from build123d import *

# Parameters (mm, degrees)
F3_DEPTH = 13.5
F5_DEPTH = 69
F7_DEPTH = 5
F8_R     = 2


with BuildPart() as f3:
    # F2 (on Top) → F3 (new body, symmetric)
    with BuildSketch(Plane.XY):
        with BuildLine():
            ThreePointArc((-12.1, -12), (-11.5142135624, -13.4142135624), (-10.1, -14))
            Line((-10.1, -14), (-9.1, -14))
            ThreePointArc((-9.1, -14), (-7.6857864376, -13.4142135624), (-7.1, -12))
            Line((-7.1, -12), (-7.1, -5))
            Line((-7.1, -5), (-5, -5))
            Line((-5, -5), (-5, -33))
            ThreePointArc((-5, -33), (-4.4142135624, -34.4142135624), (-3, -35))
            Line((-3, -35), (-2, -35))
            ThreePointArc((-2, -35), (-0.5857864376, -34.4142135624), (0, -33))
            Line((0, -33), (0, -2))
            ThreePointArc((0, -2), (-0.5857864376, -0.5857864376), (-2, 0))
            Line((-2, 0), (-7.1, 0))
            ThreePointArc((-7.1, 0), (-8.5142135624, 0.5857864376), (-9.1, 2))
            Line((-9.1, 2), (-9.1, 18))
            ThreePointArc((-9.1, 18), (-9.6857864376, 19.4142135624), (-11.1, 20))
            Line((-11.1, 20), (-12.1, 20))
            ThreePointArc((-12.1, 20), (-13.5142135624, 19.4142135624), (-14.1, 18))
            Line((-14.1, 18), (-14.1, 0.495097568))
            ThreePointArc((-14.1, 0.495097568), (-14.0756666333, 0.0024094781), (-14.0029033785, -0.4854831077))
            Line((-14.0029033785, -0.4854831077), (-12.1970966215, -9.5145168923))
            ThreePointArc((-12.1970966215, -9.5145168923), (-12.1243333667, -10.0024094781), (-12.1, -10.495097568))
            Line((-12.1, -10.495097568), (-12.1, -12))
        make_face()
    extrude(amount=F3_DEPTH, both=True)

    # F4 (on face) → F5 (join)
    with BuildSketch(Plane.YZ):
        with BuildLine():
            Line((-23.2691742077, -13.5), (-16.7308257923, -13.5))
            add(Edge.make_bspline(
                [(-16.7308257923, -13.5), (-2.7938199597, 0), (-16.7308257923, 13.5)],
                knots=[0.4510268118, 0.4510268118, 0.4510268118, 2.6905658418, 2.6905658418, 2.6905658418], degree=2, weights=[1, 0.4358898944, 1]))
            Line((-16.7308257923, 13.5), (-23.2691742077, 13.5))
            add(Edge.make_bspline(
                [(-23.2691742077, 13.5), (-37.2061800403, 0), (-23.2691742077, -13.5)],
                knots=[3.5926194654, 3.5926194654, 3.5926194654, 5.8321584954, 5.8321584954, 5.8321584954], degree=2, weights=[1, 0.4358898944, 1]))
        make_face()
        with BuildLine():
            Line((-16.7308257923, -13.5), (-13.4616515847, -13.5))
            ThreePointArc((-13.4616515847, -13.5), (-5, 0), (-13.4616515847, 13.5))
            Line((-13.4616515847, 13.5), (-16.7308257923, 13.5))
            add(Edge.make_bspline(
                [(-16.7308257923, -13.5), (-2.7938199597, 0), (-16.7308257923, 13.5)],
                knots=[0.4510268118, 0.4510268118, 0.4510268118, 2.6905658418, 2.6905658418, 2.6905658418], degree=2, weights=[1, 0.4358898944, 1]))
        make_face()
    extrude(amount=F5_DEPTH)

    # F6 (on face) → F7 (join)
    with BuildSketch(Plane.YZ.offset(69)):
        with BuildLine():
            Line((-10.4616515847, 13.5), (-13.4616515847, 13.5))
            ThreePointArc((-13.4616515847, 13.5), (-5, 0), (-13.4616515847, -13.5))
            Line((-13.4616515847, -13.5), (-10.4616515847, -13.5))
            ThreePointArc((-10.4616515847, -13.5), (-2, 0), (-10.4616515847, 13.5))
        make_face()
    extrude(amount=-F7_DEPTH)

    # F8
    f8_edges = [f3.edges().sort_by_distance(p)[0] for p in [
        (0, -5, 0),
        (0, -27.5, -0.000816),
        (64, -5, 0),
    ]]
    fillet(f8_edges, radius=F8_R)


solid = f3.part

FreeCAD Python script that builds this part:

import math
import FreeCAD as App
import Part
import Sketcher

V = App.Vector
Q = App.Units.Quantity


def edges_at(feature, points):
    """Names of the edges that pass closest to the given points."""
    edges = feature.Shape.Edges
    near = lambda p: min(range(len(edges)), key=lambda i: edges[i].distToShape(Part.Vertex(*p))[0])
    return sorted({f"Edge{near(p) + 1}" for p in points})

doc = App.newDocument("Part")
body = doc.addObject("PartDesign::Body", "Body")

sketch1 = body.newObject("Sketcher::SketchObject", "Sketch")
sketch1.AttachmentSupport = (doc.getObject("XY_Plane"), [""])
sketch1.MapMode = "FlatFace"
sketch1.addGeometry(Part.ArcOfCircle(Part.Circle(V(-10.1, -12, 0), V(0, 0, 1), 2), math.radians(180), math.radians(270)), False)
sketch1.addGeometry(Part.LineSegment(V(-10.1, -14, 0), V(-9.1, -14, 0)), False)
sketch1.addGeometry(Part.ArcOfCircle(Part.Circle(V(-9.1, -12, 0), V(0, 0, 1), 2), math.radians(-90), math.radians(0)), False)
sketch1.addGeometry(Part.LineSegment(V(-7.1, -12, 0), V(-7.1, -5, 0)), False)
sketch1.addGeometry(Part.LineSegment(V(-7.1, -5, 0), V(-5, -5, 0)), False)
sketch1.addGeometry(Part.LineSegment(V(-5, -5, 0), V(-5, -33, 0)), False)
sketch1.addGeometry(Part.ArcOfCircle(Part.Circle(V(-3, -33, 0), V(0, 0, 1), 2), math.radians(180), math.radians(270)), False)
sketch1.addGeometry(Part.LineSegment(V(-3, -35, 0), V(-2, -35, 0)), False)
sketch1.addGeometry(Part.ArcOfCircle(Part.Circle(V(-2, -33, 0), V(0, 0, 1), 2), math.radians(-90), math.radians(0)), False)
sketch1.addGeometry(Part.LineSegment(V(0, -33, 0), V(0, -2, 0)), False)
sketch1.addGeometry(Part.ArcOfCircle(Part.Circle(V(-2, -2, 0), V(0, 0, 1), 2), math.radians(0), math.radians(90)), False)
sketch1.addGeometry(Part.LineSegment(V(-2, 0, 0), V(-7.1, 0, 0)), False)
sketch1.addGeometry(Part.ArcOfCircle(Part.Circle(V(-7.1, 2, 0), V(0, 0, 1), 2), math.radians(180), math.radians(270)), False)
sketch1.addGeometry(Part.LineSegment(V(-9.1, 2, 0), V(-9.1, 18, 0)), False)
sketch1.addGeometry(Part.ArcOfCircle(Part.Circle(V(-11.1, 18, 0), V(0, 0, 1), 2), math.radians(0), math.radians(90)), False)
sketch1.addGeometry(Part.LineSegment(V(-11.1, 20, 0), V(-12.1, 20, 0)), False)
sketch1.addGeometry(Part.ArcOfCircle(Part.Circle(V(-12.1, 18, 0), V(0, 0, 1), 2), math.radians(90), math.radians(180)), False)
sketch1.addGeometry(Part.LineSegment(V(-14.1, 18, 0), V(-14.1, 0.5, 0)), False)
sketch1.addGeometry(Part.ArcOfCircle(Part.Circle(V(-9.1, 0.5, 0), V(0, 0, 1), 5), math.radians(-180), math.radians(-168.69)), False)
sketch1.addGeometry(Part.LineSegment(V(-14, -0.5, 0), V(-12.2, -9.5, 0)), False)
sketch1.addGeometry(Part.ArcOfCircle(Part.Circle(V(-17.1, -10.5, 0), V(0, 0, 1), 5), math.radians(0), math.radians(11.31)), False)
sketch1.addGeometry(Part.LineSegment(V(-12.1, -10.5, 0), V(-12.1, -12, 0)), False)
sketch1.addConstraint(Sketcher.Constraint("Tangent", 0, 2, 1, 1))
sketch1.addConstraint(Sketcher.Constraint("Tangent", 1, 2, 2, 1))
sketch1.addConstraint(Sketcher.Constraint("Tangent", 2, 2, 3, 1))
sketch1.addConstraint(Sketcher.Constraint("Coincident", 3, 2, 4, 1))
sketch1.addConstraint(Sketcher.Constraint("Coincident", 4, 2, 5, 1))
sketch1.addConstraint(Sketcher.Constraint("Tangent", 5, 2, 6, 1))
sketch1.addConstraint(Sketcher.Constraint("Tangent", 6, 2, 7, 1))
sketch1.addConstraint(Sketcher.Constraint("Tangent", 7, 2, 8, 1))
sketch1.addConstraint(Sketcher.Constraint("Tangent", 8, 2, 9, 1))
sketch1.addConstraint(Sketcher.Constraint("Tangent", 9, 2, 10, 1))
sketch1.addConstraint(Sketcher.Constraint("Tangent", 10, 2, 11, 1))
sketch1.addConstraint(Sketcher.Constraint("Tangent", 11, 2, 12, 2))
sketch1.addConstraint(Sketcher.Constraint("Tangent", 12, 1, 13, 1))
sketch1.addConstraint(Sketcher.Constraint("Tangent", 13, 2, 14, 1))
sketch1.addConstraint(Sketcher.Constraint("Tangent", 14, 2, 15, 1))
sketch1.addConstraint(Sketcher.Constraint("Tangent", 15, 2, 16, 1))
sketch1.addConstraint(Sketcher.Constraint("Tangent", 16, 2, 17, 1))
sketch1.addConstraint(Sketcher.Constraint("Tangent", 17, 2, 18, 1))
sketch1.addConstraint(Sketcher.Constraint("Tangent", 18, 2, 19, 1))
sketch1.addConstraint(Sketcher.Constraint("Tangent", 19, 2, 20, 2))
sketch1.addConstraint(Sketcher.Constraint("Tangent", 20, 1, 21, 1))
sketch1.addConstraint(Sketcher.Constraint("Tangent", 21, 2, 0, 1))
sketch1.addConstraint(Sketcher.Constraint("Horizontal", 1))
sketch1.addConstraint(Sketcher.Constraint("Vertical", 3))
sketch1.addConstraint(Sketcher.Constraint("Horizontal", 4))
sketch1.addConstraint(Sketcher.Constraint("Vertical", 5))
sketch1.addConstraint(Sketcher.Constraint("Horizontal", 7))
sketch1.addConstraint(Sketcher.Constraint("Vertical", 9))
sketch1.addConstraint(Sketcher.Constraint("Horizontal", 11))
sketch1.addConstraint(Sketcher.Constraint("Vertical", 13))
sketch1.addConstraint(Sketcher.Constraint("Horizontal", 15))
sketch1.addConstraint(Sketcher.Constraint("Vertical", 17))
sketch1.addConstraint(Sketcher.Constraint("Vertical", 21))
sketch1.addConstraint(Sketcher.Constraint("Equal", 0, 2))
sketch1.addConstraint(Sketcher.Constraint("Equal", 2, 6))
sketch1.addConstraint(Sketcher.Constraint("Equal", 6, 8))
sketch1.addConstraint(Sketcher.Constraint("Equal", 8, 10))
sketch1.addConstraint(Sketcher.Constraint("Equal", 10, 12))
sketch1.addConstraint(Sketcher.Constraint("Equal", 12, 14))
sketch1.addConstraint(Sketcher.Constraint("Equal", 14, 16))
sketch1.addConstraint(Sketcher.Constraint("Equal", 18, 20))
sketch1.addConstraint(Sketcher.Constraint("PointOnObject", 8, 2, -2))
sketch1.addConstraint(Sketcher.Constraint("PointOnObject", 10, 2, -1))
sketch1.addConstraint(Sketcher.Constraint("Vertical", 2, 3, 18, 3))
sketch1.addConstraint(Sketcher.Constraint("Vertical", 12, 3, 2, 2))
sketch1.addConstraint(Sketcher.Constraint("Vertical", 15, 2, 20, 1))
sketch1.addConstraint(Sketcher.Constraint("Equal", 1, 7))
sketch1.addConstraint(Sketcher.Constraint("Radius", 0, Q("2 mm")))
sketch1.addConstraint(Sketcher.Constraint("Radius", 18, Q("5 mm")))
sketch1.addConstraint(Sketcher.Constraint("DistanceY", 3, 1, 3, 2, Q("7 mm")))
sketch1.addConstraint(Sketcher.Constraint("DistanceY", 5, 2, 5, 1, Q("28 mm")))
sketch1.addConstraint(Sketcher.Constraint("DistanceY", 9, 1, 9, 2, Q("31 mm")))
sketch1.addConstraint(Sketcher.Constraint("DistanceY", 13, 1, 13, 2, Q("16 mm")))
sketch1.addConstraint(Sketcher.Constraint("DistanceX", 4, 1, 4, 2, Q("2.1 mm")))
sketch1.addConstraint(Sketcher.Constraint("DistanceY", 17, 2, 17, 1, Q("17.504902 mm")))
sketch1.addConstraint(Sketcher.Constraint("DistanceY", 21, 2, 21, 1, Q("1.504902 mm")))
pad1 = body.newObject("PartDesign::Pad", "Pad")
pad1.Profile = sketch1
pad1.Length = 27
pad1.Midplane = True

sketch2 = body.newObject("Sketcher::SketchObject", "Sketch001")
sketch2.AttachmentSupport = (doc.getObject("YZ_Plane"), [""])
sketch2.MapMode = "FlatFace"
sketch2.addGeometry(Part.LineSegment(V(-23.269174, -13.5, 0), V(-13.461652, -13.5, 0)), False)
sketch2.addGeometry(Part.ArcOfCircle(Part.Circle(V(-20, 0, 0), V(0, 0, 1), 15), math.radians(-64.158067), math.radians(64.158067)), False)
sketch2.addGeometry(Part.LineSegment(V(-13.461652, 13.5, 0), V(-23.269174, 13.5, 0)), False)
sketch2.addGeometry(Part.BSplineCurve([V(-23.269174, 13.5, 0), V(-37.20618, 0, 0), V(-23.269174, -13.5, 0)], [3, 3], [3.592619465, 5.832158495], False, 2, [1, 0.435889894, 1], False), False)
sketch2.addConstraint(Sketcher.Constraint("Block", 3))
sketch2.addConstraint(Sketcher.Constraint("Coincident", 0, 2, 1, 1))
sketch2.addConstraint(Sketcher.Constraint("Coincident", 1, 2, 2, 1))
sketch2.addConstraint(Sketcher.Constraint("Coincident", 2, 2, 3, 1))
sketch2.addConstraint(Sketcher.Constraint("Coincident", 3, 2, 0, 1))
sketch2.addConstraint(Sketcher.Constraint("Horizontal", 0))
sketch2.addConstraint(Sketcher.Constraint("Horizontal", 2))
sketch2.addConstraint(Sketcher.Constraint("PointOnObject", 1, 3, -1))
sketch2.addConstraint(Sketcher.Constraint("Radius", 1, Q("15 mm")))
sketch2.addConstraint(Sketcher.Constraint("DistanceX", 1, 3, -1, 1, Q("20 mm")))
pad2 = body.newObject("PartDesign::Pad", "Pad001")
pad2.Profile = sketch2
pad2.Length = 69

sketch3 = body.newObject("Sketcher::SketchObject", "Sketch002")
sketch3.AttachmentSupport = (doc.getObject("YZ_Plane"), [""])
sketch3.MapMode = "FlatFace"
sketch3.AttachmentOffset = App.Placement(V(0, 0, 69), App.Rotation())
sketch3.addGeometry(Part.LineSegment(V(-10.5, 13.5, 0), V(-13.5, 13.5, 0)), False)
sketch3.addGeometry(Part.ArcOfCircle(Part.Circle(V(-20, 0, 0), V(0, 0, 1), 15), math.radians(-64), math.radians(64)), False)
sketch3.addGeometry(Part.LineSegment(V(-13.5, -13.5, 0), V(-10.5, -13.5, 0)), False)
sketch3.addGeometry(Part.ArcOfCircle(Part.Circle(V(-17, 0, 0), V(0, 0, 1), 15), math.radians(-64), math.radians(64)), False)
sketch3.addConstraint(Sketcher.Constraint("Coincident", 0, 2, 1, 2))
sketch3.addConstraint(Sketcher.Constraint("Coincident", 1, 1, 2, 1))
sketch3.addConstraint(Sketcher.Constraint("Coincident", 2, 2, 3, 1))
sketch3.addConstraint(Sketcher.Constraint("Coincident", 3, 2, 0, 1))
sketch3.addConstraint(Sketcher.Constraint("Horizontal", 0))
sketch3.addConstraint(Sketcher.Constraint("Horizontal", 2))
sketch3.addConstraint(Sketcher.Constraint("Equal", 1, 3))
sketch3.addConstraint(Sketcher.Constraint("Symmetric", 0, 2, 1, 1, -1))
sketch3.addConstraint(Sketcher.Constraint("PointOnObject", 3, 3, -1))
sketch3.addConstraint(Sketcher.Constraint("Radius", 1, Q("15 mm")))
sketch3.addConstraint(Sketcher.Constraint("DistanceX", 0, 2, 0, 1, Q("3 mm")))
sketch3.addConstraint(Sketcher.Constraint("DistanceX", 1, 3, -1, 1, Q("20 mm")))
sketch3.addConstraint(Sketcher.Constraint("DistanceY", 1, 1, 0, 2, Q("27 mm")))
pad3 = body.newObject("PartDesign::Pad", "Pad002")
pad3.Profile = sketch3
pad3.Length = 5
pad3.Reversed = True
doc.recompute()

fillet = body.newObject("PartDesign::Fillet", "Fillet")
fillet.Base = (pad3, edges_at(pad3, [(0, -5, 0), (0, -27.5, -0.001), (64, -5, 0)]))
fillet.Radius = 2

doc.recompute()
